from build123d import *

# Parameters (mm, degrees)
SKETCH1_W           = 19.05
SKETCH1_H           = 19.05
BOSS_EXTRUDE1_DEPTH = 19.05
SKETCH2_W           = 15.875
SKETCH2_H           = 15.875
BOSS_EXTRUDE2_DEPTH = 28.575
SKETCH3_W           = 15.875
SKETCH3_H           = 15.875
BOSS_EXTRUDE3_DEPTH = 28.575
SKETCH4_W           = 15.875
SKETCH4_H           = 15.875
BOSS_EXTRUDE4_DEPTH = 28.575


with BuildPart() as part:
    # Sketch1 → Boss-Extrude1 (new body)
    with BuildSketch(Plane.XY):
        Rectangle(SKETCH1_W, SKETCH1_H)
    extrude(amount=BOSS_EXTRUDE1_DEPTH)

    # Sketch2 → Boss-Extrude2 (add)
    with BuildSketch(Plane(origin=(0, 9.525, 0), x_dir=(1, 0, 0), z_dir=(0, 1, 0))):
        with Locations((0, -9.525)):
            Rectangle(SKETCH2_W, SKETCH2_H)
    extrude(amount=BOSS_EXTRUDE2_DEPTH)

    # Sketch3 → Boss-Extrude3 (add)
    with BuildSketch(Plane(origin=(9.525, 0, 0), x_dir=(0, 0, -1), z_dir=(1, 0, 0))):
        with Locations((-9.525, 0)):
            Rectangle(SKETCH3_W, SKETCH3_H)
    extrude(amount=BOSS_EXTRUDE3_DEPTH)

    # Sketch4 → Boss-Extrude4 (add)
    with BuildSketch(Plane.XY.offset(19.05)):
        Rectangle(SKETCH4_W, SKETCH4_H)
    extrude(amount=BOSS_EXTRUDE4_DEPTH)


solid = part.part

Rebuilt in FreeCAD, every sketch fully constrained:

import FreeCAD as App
import Part
import Sketcher
from FreeCAD import Vector
Q = App.Units.Quantity

doc = App.newDocument("Part")
body = doc.addObject("PartDesign::Body", "Body")

# Sketch on XY plane
sketch1 = body.newObject("Sketcher::SketchObject", "Sketch")
sketch1.AttachmentSupport = (doc.getObject("XY_Plane"), [""])
sketch1.MapMode = "FlatFace"
sketch1.addGeometry([
    Part.LineSegment(Vector(-10, 10, 0), Vector(-10, -10, 0)),
    Part.LineSegment(Vector(-10, -10, 0), Vector(10, -10, 0)),
    Part.LineSegment(Vector(10, -10, 0), Vector(10, 10, 0)),
    Part.LineSegment(Vector(10, 10, 0), Vector(-10, 10, 0)),
], False)
sketch1.addConstraint([
    Sketcher.Constraint("Coincident", 0, 2, 1, 1),
    Sketcher.Constraint("Coincident", 1, 2, 2, 1),
    Sketcher.Constraint("Coincident", 2, 2, 3, 1),
    Sketcher.Constraint("Coincident", 3, 2, 0, 1),
    Sketcher.Constraint("Vertical", 0),
    Sketcher.Constraint("Horizontal", 1),
    Sketcher.Constraint("Vertical", 2),
    Sketcher.Constraint("Horizontal", 3),
    Sketcher.Constraint("Symmetric", 0, 2, 2, 2, -1, 1),
    Sketcher.Constraint("Equal", 3, 0),
    Sketcher.Constraint("DistanceX", 1, 1, 1, 2, Q("0.75 in")),
])
pad1 = body.newObject("PartDesign::Pad", "Pad")
pad1.Profile = sketch1
pad1.Length = Q("0.75 in")

# Sketch on XZ plane
sketch2 = body.newObject("Sketcher::SketchObject", "Sketch001")
sketch2.AttachmentSupport = (doc.getObject("XZ_Plane"), [""])
sketch2.MapMode = "FlatFace"
sketch2.AttachmentOffset = App.Placement(Vector(0, 0, -0.375 * 25.4), App.Rotation())
sketch2.addGeometry([
    Part.LineSegment(Vector(-8, 2, 0), Vector(-8, 17, 0)),
    Part.LineSegment(Vector(-8, 17, 0), Vector(8, 17, 0)),
    Part.LineSegment(Vector(8, 17, 0), Vector(8, 2, 0)),
    Part.LineSegment(Vector(8, 2, 0), Vector(-8, 2, 0)),
], False)
sketch2.addConstraint([
    Sketcher.Constraint("Coincident", 0, 2, 1, 1),
    Sketcher.Constraint("Coincident", 1, 2, 2, 1),
    Sketcher.Constraint("Coincident", 2, 2, 3, 1),
    Sketcher.Constraint("Coincident", 3, 2, 0, 1),
    Sketcher.Constraint("Vertical", 0),
    Sketcher.Constraint("Horizontal", 1),
    Sketcher.Constraint("Vertical", 2),
    Sketcher.Constraint("Horizontal", 3),
    Sketcher.Constraint("Equal", 3, 0),
    Sketcher.Constraint("DistanceX", 1, 1, 1, 2, Q("0.625 in")),
    Sketcher.Constraint("DistanceX", 0, 2, -1, 1, Q("0.3125 in")),
    Sketcher.Constraint("DistanceY", -1, 1, 0, 2, Q("0.6875 in")),
])
pad2 = body.newObject("PartDesign::Pad", "Pad001")
pad2.Profile = sketch2
pad2.Length = Q("1.125 in")
pad2.Reversed = True

# Sketch on YZ plane
sketch3 = body.newObject("Sketcher::SketchObject", "Sketch002")
sketch3.AttachmentSupport = (doc.getObject("YZ_Plane"), [""])
sketch3.MapMode = "FlatFace"
sketch3.AttachmentOffset = App.Placement(Vector(0, 0, 0.375 * 25.4), App.Rotation())
sketch3.addGeometry([
    Part.LineSegment(Vector(8, 17, 0), Vector(-8, 17, 0)),
    Part.LineSegment(Vector(-8, 17, 0), Vector(-8, 2, 0)),
    Part.LineSegment(Vector(-8, 2, 0), Vector(8, 2, 0)),
    Part.LineSegment(Vector(8, 2, 0), Vector(8, 17, 0)),
], False)
sketch3.addConstraint([
    Sketcher.Constraint("Coincident", 0, 2, 1, 1),
    Sketcher.Constraint("Coincident", 1, 2, 2, 1),
    Sketcher.Constraint("Coincident", 2, 2, 3, 1),
    Sketcher.Constraint("Coincident", 3, 2, 0, 1),
    Sketcher.Constraint("Horizontal", 0),
    Sketcher.Constraint("Vertical", 1),
    Sketcher.Constraint("Horizontal", 2),
    Sketcher.Constraint("Vertical", 3),
    Sketcher.Constraint("Equal", 2, 1),
    Sketcher.Constraint("DistanceX", 0, 2, 0, 1, Q("0.625 in")),
    Sketcher.Constraint("DistanceX", 0, 2, -1, 1, Q("0.3125 in")),
    Sketcher.Constraint("DistanceY", -1, 1, 0, 2, Q("0.6875 in")),
])
pad3 = body.newObject("PartDesign::Pad", "Pad002")
pad3.Profile = sketch3
pad3.Length = Q("1.125 in")

# Sketch on XY plane
sketch4 = body.newObject("Sketcher::SketchObject", "Sketch003")
sketch4.AttachmentSupport = (doc.getObject("XY_Plane"), [""])
sketch4.MapMode = "FlatFace"
sketch4.AttachmentOffset = App.Placement(Vector(0, 0, 0.75 * 25.4), App.Rotation())
sketch4.addGeometry([
    Part.LineSegment(Vector(-8, 8, 0), Vector(-8, -8, 0)),
    Part.LineSegment(Vector(-8, -8, 0), Vector(8, -8, 0)),
    Part.LineSegment(Vector(8, -8, 0), Vector(8, 8, 0)),
    Part.LineSegment(Vector(8, 8, 0), Vector(-8, 8, 0)),
], False)
sketch4.addConstraint([
    Sketcher.Constraint("Coincident", 0, 2, 1, 1),
    Sketcher.Constraint("Coincident", 1, 2, 2, 1),
    Sketcher.Constraint("Coincident", 2, 2, 3, 1),
    Sketcher.Constraint("Coincident", 3, 2, 0, 1),
    Sketcher.Constraint("Vertical", 0),
    Sketcher.Constraint("Horizontal", 1),
    Sketcher.Constraint("Vertical", 2),
    Sketcher.Constraint("Horizontal", 3),
    Sketcher.Constraint("Symmetric", 0, 2, 2, 2, -1, 1),
    Sketcher.Constraint("Equal", 3, 0),
    Sketcher.Constraint("DistanceX", 1, 1, 1, 2, Q("0.625 in")),
])
pad4 = body.newObject("PartDesign::Pad", "Pad003")
pad4.Profile = sketch4
pad4.Length = Q("1.125 in")

doc.recompute()
